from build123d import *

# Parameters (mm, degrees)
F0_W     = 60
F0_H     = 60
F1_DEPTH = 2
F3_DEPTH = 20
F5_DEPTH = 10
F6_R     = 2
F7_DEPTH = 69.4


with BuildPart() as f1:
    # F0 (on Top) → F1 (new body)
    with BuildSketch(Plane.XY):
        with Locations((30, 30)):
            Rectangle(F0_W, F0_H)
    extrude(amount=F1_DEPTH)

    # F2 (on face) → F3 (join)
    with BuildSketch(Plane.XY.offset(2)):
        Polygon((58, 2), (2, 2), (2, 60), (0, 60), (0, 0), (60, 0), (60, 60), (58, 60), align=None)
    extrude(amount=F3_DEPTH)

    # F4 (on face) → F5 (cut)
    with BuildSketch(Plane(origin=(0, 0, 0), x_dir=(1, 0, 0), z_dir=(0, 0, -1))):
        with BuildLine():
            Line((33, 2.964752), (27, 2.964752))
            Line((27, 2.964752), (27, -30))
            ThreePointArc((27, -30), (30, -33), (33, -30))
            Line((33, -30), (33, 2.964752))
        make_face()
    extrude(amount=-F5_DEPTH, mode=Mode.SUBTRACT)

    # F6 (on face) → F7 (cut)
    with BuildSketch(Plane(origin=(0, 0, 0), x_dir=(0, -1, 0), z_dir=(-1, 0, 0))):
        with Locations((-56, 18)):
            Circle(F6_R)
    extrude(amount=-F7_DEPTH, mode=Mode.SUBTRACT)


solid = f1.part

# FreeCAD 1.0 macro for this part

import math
import FreeCAD as App
import Part
import Sketcher

doc = App.newDocument("Part")
body = doc.addObject("PartDesign::Body", "Body")

sketch1 = body.newObject("Sketcher::SketchObject", "Sketch")
sketch1.AttachmentSupport = (doc.getObject("XY_Plane"), [""])
sketch1.MapMode = "FlatFace"
sketch1.addGeometry(Part.LineSegment(App.Vector(0, 60, 0), App.Vector(0, 0, 0)), False)
sketch1.addGeometry(Part.LineSegment(App.Vector(0, 0, 0), App.Vector(60, 0, 0)), False)
sketch1.addGeometry(Part.LineSegment(App.Vector(60, 0, 0), App.Vector(60, 60, 0)), False)
sketch1.addGeometry(Part.LineSegment(App.Vector(60, 60, 0), App.Vector(0, 60, 0)), False)
sketch1.addConstraint(Sketcher.Constraint("Coincident", 0, 2, 1, 1))
sketch1.addConstraint(Sketcher.Constraint("Coincident", 1, 2, 2, 1))
sketch1.addConstraint(Sketcher.Constraint("Coincident", 2, 2, 3, 1))
sketch1.addConstraint(Sketcher.Constraint("Coincident", 3, 2, 0, 1))
sketch1.addConstraint(Sketcher.Constraint("Vertical", 0))
sketch1.addConstraint(Sketcher.Constraint("Horizontal", 1))
sketch1.addConstraint(Sketcher.Constraint("Vertical", 2))
sketch1.addConstraint(Sketcher.Constraint("Horizontal", 3))
sketch1.addConstraint(Sketcher.Constraint("Coincident", 0, 2, -1, 1))
sketch1.addConstraint(Sketcher.Constraint("Equal", 3, 0))
sketch1.addConstraint(Sketcher.Constraint("DistanceX", 1, 1, 1, 2, 60.0))
pad1 = body.newObject("PartDesign::Pad", "Pad")
pad1.Profile = sketch1
pad1.Length = 2

sketch2 = body.newObject("Sketcher::SketchObject", "Sketch001")
sketch2.AttachmentSupport = (doc.getObject("XY_Plane"), [""])
sketch2.MapMode = "FlatFace"
sketch2.AttachmentOffset = App.Placement(App.Vector(0, 0, 2), App.Rotation())
sketch2.addGeometry(Part.LineSegment(App.Vector(58, 2, 0), App.Vector(2, 2, 0)), False)
sketch2.addGeometry(Part.LineSegment(App.Vector(2, 2, 0), App.Vector(2, 60, 0)), False)
sketch2.addGeometry(Part.LineSegment(App.Vector(2, 60, 0), App.Vector(0, 60, 0)), False)
sketch2.addGeometry(Part.LineSegment(App.Vector(0, 60, 0), App.Vector(0, 0, 0)), False)
sketch2.addGeometry(Part.LineSegment(App.Vector(0, 0, 0), App.Vector(60, 0, 0)), False)
sketch2.addGeometry(Part.LineSegment(App.Vector(60, 0, 0), App.Vector(60, 60, 0)), False)
sketch2.addGeometry(Part.LineSegment(App.Vector(60, 60, 0), App.Vector(58, 60, 0)), False)
sketch2.addGeometry(Part.LineSegment(App.Vector(58, 60, 0), App.Vector(58, 2, 0)), False)
sketch2.addConstraint(Sketcher.Constraint("Coincident", 0, 2, 1, 1))
sketch2.addConstraint(Sketcher.Constraint("Coincident", 1, 2, 2, 1))
sketch2.addConstraint(Sketcher.Constraint("Coincident", 2, 2, 3, 1))
sketch2.addConstraint(Sketcher.Constraint("Coincident", 3, 2, 4, 1))
sketch2.addConstraint(Sketcher.Constraint("Coincident", 4, 2, 5, 1))
sketch2.addConstraint(Sketcher.Constraint("Coincident", 5, 2, 6, 1))
sketch2.addConstraint(Sketcher.Constraint("Coincident", 6, 2, 7, 1))
sketch2.addConstraint(Sketcher.Constraint("Coincident", 7, 2, 0, 1))
sketch2.addConstraint(Sketcher.Constraint("Horizontal", 0))
sketch2.addConstraint(Sketcher.Constraint("Vertical", 1))
sketch2.addConstraint(Sketcher.Constraint("Horizontal", 2))
sketch2.addConstraint(Sketcher.Constraint("Vertical", 3))
sketch2.addConstraint(Sketcher.Constraint("Horizontal", 4))
sketch2.addConstraint(Sketcher.Constraint("Vertical", 5))
sketch2.addConstraint(Sketcher.Constraint("Horizontal", 6))
sketch2.addConstraint(Sketcher.Constraint("Vertical", 7))
sketch2.addConstraint(Sketcher.Constraint("Coincident", 3, 2, -1, 1))
sketch2.addConstraint(Sketcher.Constraint("Horizontal", 2, 2, 5, 2))
sketch2.addConstraint(Sketcher.Constraint("Equal", 2, 6))
sketch2.addConstraint(Sketcher.Constraint("Equal", 4, 3))
sketch2.addConstraint(Sketcher.Constraint("DistanceX", 0, 2, 0, 1, 56.0))
sketch2.addConstraint(Sketcher.Constraint("DistanceX", 2, 2, 2, 1, 2.0))
sketch2.addConstraint(Sketcher.Constraint("DistanceY", 1, 1, 1, 2, 58.0))
pad2 = body.newObject("PartDesign::Pad", "Pad001")
pad2.Profile = sketch2
pad2.Length = 20

sketch3 = body.newObject("Sketcher::SketchObject", "Sketch002")
sketch3.AttachmentSupport = (doc.getObject("XY_Plane"), [""])
sketch3.MapMode = "FlatFace"
sketch3.addGeometry(Part.LineSegment(App.Vector(33, -2.964752, 0), App.Vector(27, -2.964752, 0)), False)
sketch3.addGeometry(Part.LineSegment(App.Vector(27, -2.964752, 0), App.Vector(27, 30, 0)), False)
sketch3.addGeometry(Part.ArcOfCircle(Part.Circle(App.Vector(30, 30, 0), App.Vector(0, 0, 1), 3), math.radians(0), math.radians(180)), False)
sketch3.addGeometry(Part.LineSegment(App.Vector(33, 30, 0), App.Vector(33, -2.964752, 0)), False)
sketch3.addConstraint(Sketcher.Constraint("Coincident", 0, 2, 1, 1))
sketch3.addConstraint(Sketcher.Constraint("Tangent", 1, 2, 2, 2))
sketch3.addConstraint(Sketcher.Constraint("Tangent", 2, 1, 3, 1))
sketch3.addConstraint(Sketcher.Constraint("Coincident", 3, 2, 0, 1))
sketch3.addConstraint(Sketcher.Constraint("Horizontal", 0))
sketch3.addConstraint(Sketcher.Constraint("Vertical", 1))
sketch3.addConstraint(Sketcher.Constraint("Vertical", 3))
sketch3.addConstraint(Sketcher.Constraint("Radius", 2, 3.0))
sketch3.addConstraint(Sketcher.Constraint("DistanceX", -1, 1, 2, 3, 30.0))
sketch3.addConstraint(Sketcher.Constraint("DistanceY", -1, 1, 2, 3, 30.0))
sketch3.addConstraint(Sketcher.Constraint("DistanceY", 1, 1, 1, 2, 32.964752))
pocket1 = body.newObject("PartDesign::Pocket", "Pocket")
pocket1.Profile = sketch3
pocket1.Length = 10
pocket1.Reversed = True

sketch4 = body.newObject("Sketcher::SketchObject", "Sketch003")
sketch4.AttachmentSupport = (doc.getObject("YZ_Plane"), [""])
sketch4.MapMode = "FlatFace"
sketch4.addGeometry(Part.Circle(App.Vector(56, 18, 0), App.Vector(0, 0, 1), 2), False)
sketch4.addConstraint(Sketcher.Constraint("Diameter", 0, 4.0))
sketch4.addConstraint(Sketcher.Constraint("DistanceX", -1, 1, 0, 3, 56.0))
sketch4.addConstraint(Sketcher.Constraint("DistanceY", -1, 1, 0, 3, 18.0))
pocket2 = body.newObject("PartDesign::Pocket", "Pocket001")
pocket2.Profile = sketch4
pocket2.Length = 69.4
pocket2.Reversed = True

doc.recompute()
